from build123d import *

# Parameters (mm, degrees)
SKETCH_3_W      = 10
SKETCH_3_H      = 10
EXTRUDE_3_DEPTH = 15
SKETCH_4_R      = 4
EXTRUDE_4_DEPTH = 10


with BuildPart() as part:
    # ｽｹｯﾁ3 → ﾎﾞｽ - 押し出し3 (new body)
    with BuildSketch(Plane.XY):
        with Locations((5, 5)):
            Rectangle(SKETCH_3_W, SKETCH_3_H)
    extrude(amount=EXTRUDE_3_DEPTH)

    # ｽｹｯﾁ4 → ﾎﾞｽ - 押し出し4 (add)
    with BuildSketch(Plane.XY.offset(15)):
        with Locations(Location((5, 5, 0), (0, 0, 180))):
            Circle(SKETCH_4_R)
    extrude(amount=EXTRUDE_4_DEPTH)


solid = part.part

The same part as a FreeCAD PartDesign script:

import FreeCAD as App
import Part
import Sketcher
from FreeCAD import Vector


def add_polygon(sketch, points):
    """Adds a closed chain of lines whose ends are joined by coincident constraints."""
    first, n = sketch.GeometryCount, len(points)
    for a, b in zip(points, points[1:] + points[:1]):
        sketch.addGeometry(Part.LineSegment(App.Vector(*a, 0), App.Vector(*b, 0)), False)
    for i in range(n):
        sketch.addConstraint(Sketcher.Constraint("Coincident", first + i, 2, first + (i + 1) % n, 1))

doc = App.newDocument("Part")
body = doc.addObject("PartDesign::Body", "Body")

# Sketch on XY plane
sketch1 = body.newObject("Sketcher::SketchObject", "Sketch")
sketch1.AttachmentSupport = (doc.getObject("XY_Plane"), [""])
sketch1.MapMode = "FlatFace"
add_polygon(sketch1, [(0, 10), (0, 0), (10, 0), (10, 10)])  # lines 0-3
sketch1.addConstraint([
    Sketcher.Constraint("Vertical", 0),
    Sketcher.Constraint("Horizontal", 1),
    Sketcher.Constraint("Vertical", 2),
    Sketcher.Constraint("Horizontal", 3),
    Sketcher.Constraint("Coincident", 0, 2, -1, 1),
    Sketcher.Constraint("Equal", 3, 0),
    Sketcher.Constraint("DistanceX", 1, 1, 1, 2, 10.0),
])
pad1 = body.newObject("PartDesign::Pad", "Pad")
pad1.Profile = sketch1
pad1.Length = 15

# Sketch on XY plane
sketch2 = body.newObject("Sketcher::SketchObject", "Sketch001")
sketch2.AttachmentSupport = (doc.getObject("XY_Plane"), [""])
sketch2.MapMode = "FlatFace"
sketch2.AttachmentOffset = App.Placement(Vector(0, 0, 15), App.Rotation())
sketch2.addGeometry(Part.Circle(Vector(5, 5, 0), Vector(0, 0, 1), 4), False)
sketch2.addConstraint([
    Sketcher.Constraint("Diameter", 0, 8.0),
    Sketcher.Constraint("DistanceX", -1, 1, 0, 3, 5.0),
    Sketcher.Constraint("DistanceY", -1, 1, 0, 3, 5.0),
])
pad2 = body.newObject("PartDesign::Pad", "Pad001")
pad2.Profile = sketch2
pad2.Length = 10

doc.recompute()
